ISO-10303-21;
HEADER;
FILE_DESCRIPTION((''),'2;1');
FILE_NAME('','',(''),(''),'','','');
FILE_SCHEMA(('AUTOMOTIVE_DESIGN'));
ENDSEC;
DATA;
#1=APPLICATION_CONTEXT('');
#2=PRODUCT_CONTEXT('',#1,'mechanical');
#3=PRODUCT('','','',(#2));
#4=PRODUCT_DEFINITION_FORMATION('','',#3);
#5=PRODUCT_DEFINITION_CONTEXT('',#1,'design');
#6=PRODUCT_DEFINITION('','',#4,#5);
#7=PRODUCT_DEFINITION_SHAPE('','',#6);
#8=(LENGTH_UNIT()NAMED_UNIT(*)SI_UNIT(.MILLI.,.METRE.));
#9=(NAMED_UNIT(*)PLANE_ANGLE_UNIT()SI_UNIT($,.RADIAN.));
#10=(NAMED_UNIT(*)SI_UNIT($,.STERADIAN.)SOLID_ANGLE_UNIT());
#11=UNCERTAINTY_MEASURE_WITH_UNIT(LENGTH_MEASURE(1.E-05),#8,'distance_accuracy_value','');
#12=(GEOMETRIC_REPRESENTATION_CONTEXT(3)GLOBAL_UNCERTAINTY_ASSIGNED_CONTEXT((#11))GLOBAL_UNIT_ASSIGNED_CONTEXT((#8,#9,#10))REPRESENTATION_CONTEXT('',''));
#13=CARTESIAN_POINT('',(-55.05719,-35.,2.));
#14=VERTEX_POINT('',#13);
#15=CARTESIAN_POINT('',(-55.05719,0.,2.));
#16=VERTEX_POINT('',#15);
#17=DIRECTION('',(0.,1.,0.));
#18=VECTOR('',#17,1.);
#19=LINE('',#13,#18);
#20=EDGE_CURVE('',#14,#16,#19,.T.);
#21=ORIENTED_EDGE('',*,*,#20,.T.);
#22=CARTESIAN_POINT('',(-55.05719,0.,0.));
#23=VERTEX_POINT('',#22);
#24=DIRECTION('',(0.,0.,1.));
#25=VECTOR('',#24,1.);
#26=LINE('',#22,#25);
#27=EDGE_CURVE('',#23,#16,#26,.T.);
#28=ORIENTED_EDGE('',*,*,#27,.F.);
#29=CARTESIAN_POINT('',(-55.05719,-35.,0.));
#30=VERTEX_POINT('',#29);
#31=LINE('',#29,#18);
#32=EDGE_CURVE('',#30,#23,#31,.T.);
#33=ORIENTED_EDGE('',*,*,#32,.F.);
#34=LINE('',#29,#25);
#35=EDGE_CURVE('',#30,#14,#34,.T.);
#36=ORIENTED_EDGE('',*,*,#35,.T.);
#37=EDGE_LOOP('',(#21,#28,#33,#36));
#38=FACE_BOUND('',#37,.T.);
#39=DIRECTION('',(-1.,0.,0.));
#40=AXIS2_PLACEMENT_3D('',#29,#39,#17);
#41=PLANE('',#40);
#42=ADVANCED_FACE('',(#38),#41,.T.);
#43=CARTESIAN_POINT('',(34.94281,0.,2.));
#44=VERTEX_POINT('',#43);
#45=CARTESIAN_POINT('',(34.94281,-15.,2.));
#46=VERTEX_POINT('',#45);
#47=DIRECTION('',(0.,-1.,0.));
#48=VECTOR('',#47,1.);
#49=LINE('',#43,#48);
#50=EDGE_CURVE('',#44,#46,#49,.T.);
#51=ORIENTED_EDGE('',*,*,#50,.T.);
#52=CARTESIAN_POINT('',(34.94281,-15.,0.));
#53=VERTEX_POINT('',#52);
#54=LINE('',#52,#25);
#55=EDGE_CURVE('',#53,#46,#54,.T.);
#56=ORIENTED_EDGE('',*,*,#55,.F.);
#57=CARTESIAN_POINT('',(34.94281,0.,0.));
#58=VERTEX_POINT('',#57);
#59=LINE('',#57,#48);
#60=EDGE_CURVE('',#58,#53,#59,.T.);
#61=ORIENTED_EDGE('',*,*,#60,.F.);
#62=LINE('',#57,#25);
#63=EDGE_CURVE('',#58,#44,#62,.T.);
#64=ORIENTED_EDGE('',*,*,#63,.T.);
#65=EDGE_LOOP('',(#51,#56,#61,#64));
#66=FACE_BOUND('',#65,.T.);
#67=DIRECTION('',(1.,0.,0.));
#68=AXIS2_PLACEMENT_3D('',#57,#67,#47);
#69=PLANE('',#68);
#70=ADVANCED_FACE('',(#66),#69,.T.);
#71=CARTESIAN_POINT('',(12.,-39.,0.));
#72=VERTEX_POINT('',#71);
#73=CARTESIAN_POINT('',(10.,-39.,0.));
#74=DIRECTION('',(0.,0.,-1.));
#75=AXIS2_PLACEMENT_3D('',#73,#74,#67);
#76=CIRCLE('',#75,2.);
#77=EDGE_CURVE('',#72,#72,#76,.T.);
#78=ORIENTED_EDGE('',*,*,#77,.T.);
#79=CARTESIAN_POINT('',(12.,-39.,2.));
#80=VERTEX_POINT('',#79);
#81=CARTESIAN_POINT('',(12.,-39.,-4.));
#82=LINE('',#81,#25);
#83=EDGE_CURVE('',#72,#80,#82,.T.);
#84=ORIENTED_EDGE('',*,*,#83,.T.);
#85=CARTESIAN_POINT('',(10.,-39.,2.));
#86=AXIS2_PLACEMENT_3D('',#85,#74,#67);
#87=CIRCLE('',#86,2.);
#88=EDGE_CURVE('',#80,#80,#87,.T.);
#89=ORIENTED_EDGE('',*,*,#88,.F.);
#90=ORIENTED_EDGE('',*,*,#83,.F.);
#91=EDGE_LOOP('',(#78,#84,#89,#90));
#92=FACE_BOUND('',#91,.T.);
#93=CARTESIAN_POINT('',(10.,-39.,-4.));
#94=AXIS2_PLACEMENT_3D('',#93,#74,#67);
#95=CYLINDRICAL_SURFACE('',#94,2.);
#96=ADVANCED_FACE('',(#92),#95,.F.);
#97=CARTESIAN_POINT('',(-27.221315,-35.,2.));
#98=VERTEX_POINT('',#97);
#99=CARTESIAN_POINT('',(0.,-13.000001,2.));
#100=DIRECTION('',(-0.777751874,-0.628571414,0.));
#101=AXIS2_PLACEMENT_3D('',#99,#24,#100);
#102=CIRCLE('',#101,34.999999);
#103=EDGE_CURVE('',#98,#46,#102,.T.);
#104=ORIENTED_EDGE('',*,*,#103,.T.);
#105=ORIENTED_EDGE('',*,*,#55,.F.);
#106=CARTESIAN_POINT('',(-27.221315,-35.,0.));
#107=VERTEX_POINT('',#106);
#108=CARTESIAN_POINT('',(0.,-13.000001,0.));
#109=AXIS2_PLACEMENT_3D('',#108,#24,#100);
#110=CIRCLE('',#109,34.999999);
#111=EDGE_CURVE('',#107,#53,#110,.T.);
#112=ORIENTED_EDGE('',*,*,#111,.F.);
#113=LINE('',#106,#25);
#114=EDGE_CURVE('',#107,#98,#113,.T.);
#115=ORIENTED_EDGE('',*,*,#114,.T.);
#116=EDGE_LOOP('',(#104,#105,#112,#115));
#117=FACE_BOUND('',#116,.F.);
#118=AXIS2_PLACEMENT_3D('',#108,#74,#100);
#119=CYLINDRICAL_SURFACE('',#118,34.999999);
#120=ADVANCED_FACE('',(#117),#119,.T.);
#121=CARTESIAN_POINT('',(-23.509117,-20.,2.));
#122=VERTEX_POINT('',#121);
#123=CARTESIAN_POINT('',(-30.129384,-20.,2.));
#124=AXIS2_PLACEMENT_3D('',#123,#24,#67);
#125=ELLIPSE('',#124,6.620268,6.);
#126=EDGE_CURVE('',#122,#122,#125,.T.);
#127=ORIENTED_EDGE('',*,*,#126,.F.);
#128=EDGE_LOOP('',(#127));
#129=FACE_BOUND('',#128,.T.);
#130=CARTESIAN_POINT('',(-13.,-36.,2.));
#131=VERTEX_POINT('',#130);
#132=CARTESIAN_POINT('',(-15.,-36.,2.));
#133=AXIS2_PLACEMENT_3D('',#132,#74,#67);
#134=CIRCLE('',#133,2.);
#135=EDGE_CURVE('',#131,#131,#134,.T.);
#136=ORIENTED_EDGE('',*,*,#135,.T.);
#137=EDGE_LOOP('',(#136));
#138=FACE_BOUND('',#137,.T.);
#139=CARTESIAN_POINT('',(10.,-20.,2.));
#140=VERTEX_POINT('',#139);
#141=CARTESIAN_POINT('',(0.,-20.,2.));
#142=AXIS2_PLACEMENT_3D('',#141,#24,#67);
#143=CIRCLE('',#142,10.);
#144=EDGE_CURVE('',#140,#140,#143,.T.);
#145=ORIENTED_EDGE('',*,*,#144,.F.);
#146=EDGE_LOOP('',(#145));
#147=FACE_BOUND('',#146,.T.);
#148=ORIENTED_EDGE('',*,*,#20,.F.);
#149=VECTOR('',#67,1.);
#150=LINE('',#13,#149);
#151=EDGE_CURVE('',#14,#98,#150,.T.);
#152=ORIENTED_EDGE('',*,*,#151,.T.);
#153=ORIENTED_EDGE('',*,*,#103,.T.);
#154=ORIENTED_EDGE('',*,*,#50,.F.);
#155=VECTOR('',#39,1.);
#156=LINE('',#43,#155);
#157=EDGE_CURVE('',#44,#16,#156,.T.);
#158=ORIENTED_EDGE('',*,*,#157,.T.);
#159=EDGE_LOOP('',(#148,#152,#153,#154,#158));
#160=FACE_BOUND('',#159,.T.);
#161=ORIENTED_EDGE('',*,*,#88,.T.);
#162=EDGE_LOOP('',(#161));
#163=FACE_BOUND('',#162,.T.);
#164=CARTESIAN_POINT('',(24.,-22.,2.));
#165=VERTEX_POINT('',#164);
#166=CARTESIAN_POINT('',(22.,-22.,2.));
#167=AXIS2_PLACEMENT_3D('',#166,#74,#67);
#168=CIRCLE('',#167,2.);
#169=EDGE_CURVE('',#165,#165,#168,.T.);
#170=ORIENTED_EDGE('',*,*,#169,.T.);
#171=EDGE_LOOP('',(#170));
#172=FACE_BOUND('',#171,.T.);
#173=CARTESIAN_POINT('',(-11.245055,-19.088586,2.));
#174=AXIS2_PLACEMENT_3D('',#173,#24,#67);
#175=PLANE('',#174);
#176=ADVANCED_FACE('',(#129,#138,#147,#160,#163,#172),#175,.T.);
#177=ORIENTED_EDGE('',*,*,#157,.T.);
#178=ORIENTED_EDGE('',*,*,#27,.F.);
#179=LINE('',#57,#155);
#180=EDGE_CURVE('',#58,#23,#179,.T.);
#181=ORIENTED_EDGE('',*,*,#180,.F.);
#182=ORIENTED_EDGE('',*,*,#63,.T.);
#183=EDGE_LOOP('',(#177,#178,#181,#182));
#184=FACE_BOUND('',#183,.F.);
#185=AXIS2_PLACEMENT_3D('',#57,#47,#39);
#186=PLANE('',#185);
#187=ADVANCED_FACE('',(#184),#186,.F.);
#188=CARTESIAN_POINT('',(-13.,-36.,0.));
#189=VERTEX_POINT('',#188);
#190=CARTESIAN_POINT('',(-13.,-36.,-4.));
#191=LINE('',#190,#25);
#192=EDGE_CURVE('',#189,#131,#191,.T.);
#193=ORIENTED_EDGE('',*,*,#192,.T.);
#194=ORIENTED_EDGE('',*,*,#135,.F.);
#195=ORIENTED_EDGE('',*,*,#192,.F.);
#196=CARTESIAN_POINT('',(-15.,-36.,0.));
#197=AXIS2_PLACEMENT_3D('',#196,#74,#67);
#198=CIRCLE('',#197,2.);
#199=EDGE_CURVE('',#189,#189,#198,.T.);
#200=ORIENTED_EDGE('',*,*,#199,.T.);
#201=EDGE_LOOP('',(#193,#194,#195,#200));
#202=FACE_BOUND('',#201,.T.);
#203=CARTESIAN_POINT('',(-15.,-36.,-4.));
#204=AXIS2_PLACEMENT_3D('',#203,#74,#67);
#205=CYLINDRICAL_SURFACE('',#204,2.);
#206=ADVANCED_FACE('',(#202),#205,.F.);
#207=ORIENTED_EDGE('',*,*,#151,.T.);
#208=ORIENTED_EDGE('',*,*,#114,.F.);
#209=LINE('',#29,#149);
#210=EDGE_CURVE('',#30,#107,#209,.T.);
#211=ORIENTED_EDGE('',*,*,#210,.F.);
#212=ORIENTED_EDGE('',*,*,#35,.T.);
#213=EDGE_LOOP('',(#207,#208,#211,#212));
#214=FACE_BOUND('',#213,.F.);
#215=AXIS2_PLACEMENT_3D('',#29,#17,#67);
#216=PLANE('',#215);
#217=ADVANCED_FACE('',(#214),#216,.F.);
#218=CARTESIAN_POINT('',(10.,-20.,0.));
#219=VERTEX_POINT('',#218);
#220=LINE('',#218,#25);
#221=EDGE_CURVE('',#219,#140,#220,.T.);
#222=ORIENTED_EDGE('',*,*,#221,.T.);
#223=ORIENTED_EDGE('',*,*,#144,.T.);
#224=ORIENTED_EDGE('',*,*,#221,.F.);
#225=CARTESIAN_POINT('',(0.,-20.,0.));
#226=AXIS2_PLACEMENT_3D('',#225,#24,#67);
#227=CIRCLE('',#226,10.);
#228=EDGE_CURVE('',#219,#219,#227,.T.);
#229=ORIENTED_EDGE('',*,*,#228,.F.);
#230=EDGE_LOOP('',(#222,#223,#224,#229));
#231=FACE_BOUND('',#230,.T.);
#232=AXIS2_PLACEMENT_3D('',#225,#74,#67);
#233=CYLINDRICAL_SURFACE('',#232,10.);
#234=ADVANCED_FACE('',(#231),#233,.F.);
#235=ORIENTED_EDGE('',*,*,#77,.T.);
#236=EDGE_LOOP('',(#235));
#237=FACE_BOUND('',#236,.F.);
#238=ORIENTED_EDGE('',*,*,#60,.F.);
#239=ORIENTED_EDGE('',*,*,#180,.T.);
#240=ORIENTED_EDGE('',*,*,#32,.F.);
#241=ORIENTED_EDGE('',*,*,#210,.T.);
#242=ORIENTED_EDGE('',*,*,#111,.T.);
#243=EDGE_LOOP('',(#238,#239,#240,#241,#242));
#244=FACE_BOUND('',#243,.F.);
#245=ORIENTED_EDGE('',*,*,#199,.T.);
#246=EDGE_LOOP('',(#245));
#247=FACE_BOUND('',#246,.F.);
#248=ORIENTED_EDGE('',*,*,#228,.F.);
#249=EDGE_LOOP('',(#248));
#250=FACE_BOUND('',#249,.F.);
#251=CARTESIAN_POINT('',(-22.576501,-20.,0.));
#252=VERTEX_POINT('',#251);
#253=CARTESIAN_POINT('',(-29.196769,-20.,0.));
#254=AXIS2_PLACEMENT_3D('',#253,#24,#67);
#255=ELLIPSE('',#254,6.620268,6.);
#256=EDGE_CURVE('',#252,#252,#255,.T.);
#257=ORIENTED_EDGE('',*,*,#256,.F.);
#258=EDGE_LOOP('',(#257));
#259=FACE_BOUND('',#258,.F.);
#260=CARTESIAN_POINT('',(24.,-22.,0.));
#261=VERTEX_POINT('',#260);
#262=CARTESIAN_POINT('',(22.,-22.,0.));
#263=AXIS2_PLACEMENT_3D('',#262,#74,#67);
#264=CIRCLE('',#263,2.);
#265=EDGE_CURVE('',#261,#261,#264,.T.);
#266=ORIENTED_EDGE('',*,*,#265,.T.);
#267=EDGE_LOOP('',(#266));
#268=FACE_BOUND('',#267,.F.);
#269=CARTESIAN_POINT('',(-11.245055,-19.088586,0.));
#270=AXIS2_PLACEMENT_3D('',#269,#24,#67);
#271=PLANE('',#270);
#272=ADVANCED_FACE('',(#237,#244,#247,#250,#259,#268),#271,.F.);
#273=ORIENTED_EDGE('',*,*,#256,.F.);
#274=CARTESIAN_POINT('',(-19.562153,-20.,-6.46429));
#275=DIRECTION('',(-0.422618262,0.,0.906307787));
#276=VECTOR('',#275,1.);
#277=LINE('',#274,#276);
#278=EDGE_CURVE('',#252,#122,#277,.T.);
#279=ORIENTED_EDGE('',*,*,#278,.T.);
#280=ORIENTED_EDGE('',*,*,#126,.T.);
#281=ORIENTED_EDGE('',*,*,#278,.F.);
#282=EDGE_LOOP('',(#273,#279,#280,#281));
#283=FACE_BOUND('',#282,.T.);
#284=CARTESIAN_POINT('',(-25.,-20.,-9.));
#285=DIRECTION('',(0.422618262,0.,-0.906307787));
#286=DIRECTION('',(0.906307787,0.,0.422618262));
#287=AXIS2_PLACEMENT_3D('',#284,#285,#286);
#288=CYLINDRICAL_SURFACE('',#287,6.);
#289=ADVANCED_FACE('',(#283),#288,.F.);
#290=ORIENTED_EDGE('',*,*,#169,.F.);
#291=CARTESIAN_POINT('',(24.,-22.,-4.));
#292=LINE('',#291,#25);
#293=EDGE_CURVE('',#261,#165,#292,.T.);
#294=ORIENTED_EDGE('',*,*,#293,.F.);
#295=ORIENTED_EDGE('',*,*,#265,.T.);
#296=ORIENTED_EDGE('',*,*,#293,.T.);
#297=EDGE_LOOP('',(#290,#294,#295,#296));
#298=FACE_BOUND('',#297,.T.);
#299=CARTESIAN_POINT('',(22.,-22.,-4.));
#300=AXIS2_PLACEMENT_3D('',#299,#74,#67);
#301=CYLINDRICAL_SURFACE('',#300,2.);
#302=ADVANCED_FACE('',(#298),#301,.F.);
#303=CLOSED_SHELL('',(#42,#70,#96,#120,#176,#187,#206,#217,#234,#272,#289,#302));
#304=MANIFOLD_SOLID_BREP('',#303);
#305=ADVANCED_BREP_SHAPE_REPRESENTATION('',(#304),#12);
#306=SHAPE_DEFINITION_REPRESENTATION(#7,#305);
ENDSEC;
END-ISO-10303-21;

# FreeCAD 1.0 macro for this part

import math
import FreeCAD as App
import Part
import Sketcher

V = App.Vector
Q = App.Units.Quantity

doc = App.newDocument("Part")
body = doc.addObject("PartDesign::Body", "Body")

sketch1 = body.newObject("Sketcher::SketchObject", "Sketch")
sketch1.AttachmentSupport = (doc.getObject("XY_Plane"), [""])
sketch1.MapMode = "FlatFace"
sketch1.addGeometry(Part.Circle(V(0, 0, 0), V(0, 0, 1), 6), False)
sketch1.addConstraint(Sketcher.Constraint("Coincident", 0, 3, -1, 1))
sketch1.addConstraint(Sketcher.Constraint("Diameter", 0, Q("12 mm")))
pad1 = body.newObject("PartDesign::Pad", "Pad")
pad1.Profile = sketch1
pad1.Length = 20
body2 = doc.addObject("PartDesign::Body", "Body001")
doc.recompute()

body.Placement = App.Placement(V(-25, -20, -9), App.Rotation(V(0, -1, 0), 25))
boolean = body2.newObject("PartDesign::Boolean", "Boolean")
boolean.Type = "Fuse"
boolean.addObjects([body])
body3 = doc.addObject("PartDesign::Body", "Body002")

sketch2 = body3.newObject("Sketcher::SketchObject", "Sketch001")
sketch2.AttachmentSupport = (doc.getObject("XY_Plane002"), [""])
sketch2.MapMode = "FlatFace"
sketch2.AttachmentOffset = App.Placement(V(0, 0, -4), App.Rotation())
sketch2.addGeometry(Part.Circle(V(-15, -36, 0), V(0, 0, 1), 2), False)
sketch2.addConstraint(Sketcher.Constraint("Diameter", 0, Q("4 mm")))
sketch2.addConstraint(Sketcher.Constraint("DistanceX", 0, 3, -1, 1, Q("15 mm")))
sketch2.addConstraint(Sketcher.Constraint("DistanceY", 0, 3, -1, 1, Q("36 mm")))
pad2 = body3.newObject("PartDesign::Pad", "Pad001")
pad2.Profile = sketch2
pad2.Length = 10
body4 = doc.addObject("PartDesign::Body", "Body003")

sketch3 = body4.newObject("Sketcher::SketchObject", "Sketch002")
sketch3.AttachmentSupport = (doc.getObject("XY_Plane003"), [""])
sketch3.MapMode = "FlatFace"
sketch3.AttachmentOffset = App.Placement(V(0, 0, -4), App.Rotation())
sketch3.addGeometry(Part.Circle(V(10, -39, 0), V(0, 0, 1), 2), False)
sketch3.addConstraint(Sketcher.Constraint("Diameter", 0, Q("4 mm")))
sketch3.addConstraint(Sketcher.Constraint("DistanceX", -1, 1, 0, 3, Q("10 mm")))
sketch3.addConstraint(Sketcher.Constraint("DistanceY", 0, 3, -1, 1, Q("39 mm")))
pad3 = body4.newObject("PartDesign::Pad", "Pad002")
pad3.Profile = sketch3
pad3.Length = 10
body5 = doc.addObject("PartDesign::Body", "Body004")

sketch4 = body5.newObject("Sketcher::SketchObject", "Sketch003")
sketch4.AttachmentSupport = (doc.getObject("XY_Plane004"), [""])
sketch4.MapMode = "FlatFace"
sketch4.AttachmentOffset = App.Placement(V(0, 0, -4), App.Rotation())
sketch4.addGeometry(Part.Circle(V(22, -22, 0), V(0, 0, 1), 2), False)
sketch4.addConstraint(Sketcher.Constraint("Diameter", 0, Q("4 mm")))
sketch4.addConstraint(Sketcher.Constraint("DistanceX", -1, 1, 0, 3, Q("22 mm")))
sketch4.addConstraint(Sketcher.Constraint("DistanceY", 0, 3, -1, 1, Q("22 mm")))
pad4 = body5.newObject("PartDesign::Pad", "Pad003")
pad4.Profile = sketch4
pad4.Length = 10
body6 = doc.addObject("PartDesign::Body", "Body005")

sketch5 = body6.newObject("Sketcher::SketchObject", "Sketch004")
sketch5.AttachmentSupport = (doc.getObject("XY_Plane005"), [""])
sketch5.MapMode = "FlatFace"
sketch5.addGeometry(Part.LineSegment(V(-55, -35, 0), V(-27, -35, 0)), False)
sketch5.addGeometry(Part.ArcOfCircle(Part.Circle(V(0, -13, 0), V(0, 0, 1), 35), math.radians(-141), math.radians(-3)), False)
sketch5.addGeometry(Part.LineSegment(V(35, -15, 0), V(35, 0, 0)), False)
sketch5.addGeometry(Part.LineSegment(V(35, 0, 0), V(-55, 0, 0)), False)
sketch5.addGeometry(Part.LineSegment(V(-55, 0, 0), V(-55, -35, 0)), False)
sketch5.addGeometry(Part.Circle(V(0, -20, 0), V(0, 0, 1), 10), False)
sketch5.addConstraint(Sketcher.Constraint("Coincident", 0, 2, 1, 1))
sketch5.addConstraint(Sketcher.Constraint("Coincident", 1, 2, 2, 1))
sketch5.addConstraint(Sketcher.Constraint("Coincident", 2, 2, 3, 1))
sketch5.addConstraint(Sketcher.Constraint("Coincident", 3, 2, 4, 1))
sketch5.addConstraint(Sketcher.Constraint("Coincident", 4, 2, 0, 1))
sketch5.addConstraint(Sketcher.Constraint("Horizontal", 0))
sketch5.addConstraint(Sketcher.Constraint("Vertical", 2))
sketch5.addConstraint(Sketcher.Constraint("Horizontal", 3))
sketch5.addConstraint(Sketcher.Constraint("Vertical", 4))
sketch5.addConstraint(Sketcher.Constraint("PointOnObject", 1, 3, -2))
sketch5.addConstraint(Sketcher.Constraint("PointOnObject", 5, 3, -2))
sketch5.addConstraint(Sketcher.Constraint("PointOnObject", 2, 2, -1))
sketch5.addConstraint(Sketcher.Constraint("Diameter", 5, Q("20 mm")))
sketch5.addConstraint(Sketcher.Constraint("Radius", 1, Q("34.999999 mm")))
sketch5.addConstraint(Sketcher.Constraint("DistanceX", 3, 2, 3, 1, Q("90 mm")))
sketch5.addConstraint(Sketcher.Constraint("DistanceY", 2, 1, 2, 2, Q("15 mm")))
sketch5.addConstraint(Sketcher.Constraint("DistanceY", 4, 2, 4, 1, Q("35 mm")))
sketch5.addConstraint(Sketcher.Constraint("DistanceY", 1, 3, -1, 1, Q("13.000001 mm")))
sketch5.addConstraint(Sketcher.Constraint("DistanceY", 5, 3, -1, 1, Q("20 mm")))
pad5 = body6.newObject("PartDesign::Pad", "Pad004")
pad5.Profile = sketch5
pad5.Length = 2
doc.recompute()

boolean2 = body6.newObject("PartDesign::Boolean", "Boolean001")
boolean2.Type = "Cut"
boolean2.addObjects([body5])
doc.recompute()

boolean3 = body6.newObject("PartDesign::Boolean", "Boolean002")
boolean3.Type = "Cut"
boolean3.addObjects([body4])
doc.recompute()

boolean4 = body6.newObject("PartDesign::Boolean", "Boolean003")
boolean4.Type = "Cut"
boolean4.addObjects([body3])
doc.recompute()

boolean5 = body6.newObject("PartDesign::Boolean", "Boolean004")
boolean5.Type = "Cut"
boolean5.addObjects([body2])

doc.recompute()
